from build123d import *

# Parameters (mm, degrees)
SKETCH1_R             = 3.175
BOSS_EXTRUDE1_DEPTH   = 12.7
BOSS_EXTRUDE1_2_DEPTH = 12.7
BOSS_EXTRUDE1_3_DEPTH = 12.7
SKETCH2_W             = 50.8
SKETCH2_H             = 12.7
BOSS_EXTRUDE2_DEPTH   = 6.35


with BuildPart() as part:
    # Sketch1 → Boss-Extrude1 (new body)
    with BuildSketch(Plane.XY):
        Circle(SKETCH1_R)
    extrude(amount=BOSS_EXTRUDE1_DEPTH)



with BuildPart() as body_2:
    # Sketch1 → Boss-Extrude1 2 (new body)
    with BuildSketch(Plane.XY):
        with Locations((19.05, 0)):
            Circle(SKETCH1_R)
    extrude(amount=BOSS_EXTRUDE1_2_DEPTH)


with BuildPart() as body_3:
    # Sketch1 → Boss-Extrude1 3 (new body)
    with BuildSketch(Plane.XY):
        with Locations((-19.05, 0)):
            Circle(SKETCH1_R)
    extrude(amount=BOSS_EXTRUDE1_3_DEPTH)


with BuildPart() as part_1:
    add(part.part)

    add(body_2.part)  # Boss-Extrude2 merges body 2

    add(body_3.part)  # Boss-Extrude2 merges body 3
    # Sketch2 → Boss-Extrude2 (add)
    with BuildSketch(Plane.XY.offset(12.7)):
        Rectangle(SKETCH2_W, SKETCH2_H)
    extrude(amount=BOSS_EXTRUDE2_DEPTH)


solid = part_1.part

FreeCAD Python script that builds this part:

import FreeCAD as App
import Part
import Sketcher
from FreeCAD import Vector
Q = App.Units.Quantity

doc = App.newDocument("Part")
body = doc.addObject("PartDesign::Body", "Body")

# Sketch on XY plane
sketch1 = body.newObject("Sketcher::SketchObject", "Sketch")
sketch1.AttachmentSupport = (doc.getObject("XY_Plane"), [""])
sketch1.MapMode = "FlatFace"
sketch1.addGeometry(Part.Circle(Vector(0, 0, 0), Vector(0, 0, 1), 3.175), False)
sketch1.addConstraint(Sketcher.Constraint("Coincident", 0, 3, -1, 1))
sketch1.addConstraint(Sketcher.Constraint("Diameter", 0, Q("0.25 in")))
pad1 = body.newObject("PartDesign::Pad", "Pad")
pad1.Profile = sketch1
pad1.Length = Q("0.5 in")
body2 = doc.addObject("PartDesign::Body", "Body001")

# Sketch on XY plane
sketch2 = body2.newObject("Sketcher::SketchObject", "Sketch001")
sketch2.AttachmentSupport = (doc.getObject("XY_Plane001"), [""])
sketch2.MapMode = "FlatFace"
sketch2.addGeometry(Part.Circle(Vector(19.05, 0, 0), Vector(0, 0, 1), 3.175), False)
sketch2.addConstraint(Sketcher.Constraint("PointOnObject", 0, 3, -1))
sketch2.addConstraint(Sketcher.Constraint("Diameter", 0, Q("0.25 in")))
sketch2.addConstraint(Sketcher.Constraint("DistanceX", -1, 1, 0, 3, Q("0.75 in")))
pad2 = body2.newObject("PartDesign::Pad", "Pad001")
pad2.Profile = sketch2
pad2.Length = Q("0.5 in")
body3 = doc.addObject("PartDesign::Body", "Body002")

# Sketch on XY plane
sketch3 = body3.newObject("Sketcher::SketchObject", "Sketch002")
sketch3.AttachmentSupport = (doc.getObject("XY_Plane002"), [""])
sketch3.MapMode = "FlatFace"
sketch3.addGeometry(Part.Circle(Vector(-19.05, 0, 0), Vector(0, 0, 1), 3.175), False)
sketch3.addConstraint(Sketcher.Constraint("PointOnObject", 0, 3, -1))
sketch3.addConstraint(Sketcher.Constraint("Diameter", 0, Q("0.25 in")))
sketch3.addConstraint(Sketcher.Constraint("DistanceX", 0, 3, -1, 1, Q("0.75 in")))
pad3 = body3.newObject("PartDesign::Pad", "Pad002")
pad3.Profile = sketch3
pad3.Length = Q("0.5 in")
body.AllowCompound = True
doc.recompute()

boolean = body.newObject("PartDesign::Boolean", "Boolean")
boolean.Type = "Fuse"
boolean.addObjects([body2])
doc.recompute()

boolean2 = body.newObject("PartDesign::Boolean", "Boolean001")
boolean2.Type = "Fuse"
boolean2.addObjects([body3])

# Sketch on XY plane
sketch4 = body.newObject("Sketcher::SketchObject", "Sketch003")
sketch4.AttachmentSupport = (doc.getObject("XY_Plane"), [""])
sketch4.MapMode = "FlatFace"
sketch4.AttachmentOffset = App.Placement(Vector(0, 0, 0.5 * 25.4), App.Rotation())
sketch4.addGeometry(Part.LineSegment(Vector(-25.4, 6.35, 0), Vector(-25.4, -6.35, 0)), False)
sketch4.addGeometry(Part.LineSegment(Vector(-25.4, -6.35, 0), Vector(25.4, -6.35, 0)), False)
sketch4.addGeometry(Part.LineSegment(Vector(25.4, -6.35, 0), Vector(25.4, 6.35, 0)), False)
sketch4.addGeometry(Part.LineSegment(Vector(25.4, 6.35, 0), Vector(-25.4, 6.35, 0)), False)
sketch4.addConstraint(Sketcher.Constraint("Coincident", 0, 2, 1, 1))
sketch4.addConstraint(Sketcher.Constraint("Coincident", 1, 2, 2, 1))
sketch4.addConstraint(Sketcher.Constraint("Coincident", 2, 2, 3, 1))
sketch4.addConstraint(Sketcher.Constraint("Coincident", 3, 2, 0, 1))
sketch4.addConstraint(Sketcher.Constraint("Vertical", 0))
sketch4.addConstraint(Sketcher.Constraint("Horizontal", 1))
sketch4.addConstraint(Sketcher.Constraint("Vertical", 2))
sketch4.addConstraint(Sketcher.Constraint("Horizontal", 3))
sketch4.addConstraint(Sketcher.Constraint("Symmetric", 0, 2, 2, 2, -1, 1))
sketch4.addConstraint(Sketcher.Constraint("DistanceX", 1, 1, 1, 2, Q("2 in")))
sketch4.addConstraint(Sketcher.Constraint("DistanceY", 0, 2, 0, 1, Q("0.5 in")))
pad4 = body.newObject("PartDesign::Pad", "Pad003")
pad4.Profile = sketch4
pad4.Length = Q("0.25 in")

doc.recompute()
